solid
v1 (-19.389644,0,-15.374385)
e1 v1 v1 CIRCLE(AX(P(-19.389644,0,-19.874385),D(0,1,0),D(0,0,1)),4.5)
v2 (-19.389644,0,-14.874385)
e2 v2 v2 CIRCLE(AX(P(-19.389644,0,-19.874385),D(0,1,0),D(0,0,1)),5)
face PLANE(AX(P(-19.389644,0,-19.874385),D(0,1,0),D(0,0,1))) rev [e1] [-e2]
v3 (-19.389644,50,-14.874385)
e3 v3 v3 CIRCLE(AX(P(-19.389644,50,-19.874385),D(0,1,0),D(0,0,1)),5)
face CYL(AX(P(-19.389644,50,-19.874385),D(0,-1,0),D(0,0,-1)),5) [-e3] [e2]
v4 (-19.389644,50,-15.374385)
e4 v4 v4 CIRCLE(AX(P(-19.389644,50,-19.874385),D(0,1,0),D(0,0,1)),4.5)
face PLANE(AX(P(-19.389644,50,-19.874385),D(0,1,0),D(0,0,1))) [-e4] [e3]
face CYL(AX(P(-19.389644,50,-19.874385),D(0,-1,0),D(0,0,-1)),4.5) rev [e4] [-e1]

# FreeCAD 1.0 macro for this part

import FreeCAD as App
import Part
import Sketcher
from FreeCAD import Vector
Q = App.Units.Quantity

doc = App.newDocument("Part")
body = doc.addObject("PartDesign::Body", "Body")

# Sketch on XZ plane
sketch1 = body.newObject("Sketcher::SketchObject", "Sketch")
sketch1.AttachmentSupport = (doc.getObject("XZ_Plane"), [""])
sketch1.MapMode = "FlatFace"
sketch1.addGeometry(Part.Circle(Vector(-19.389644, -19.874385, 0), Vector(0, 0, 1), 5), False)
sketch1.addConstraint(Sketcher.Constraint("Diameter", 0, Q("10 mm")))
sketch1.addConstraint(Sketcher.Constraint("DistanceX", 0, 3, -1, 1, Q("19.389644 mm")))
sketch1.addConstraint(Sketcher.Constraint("DistanceY", 0, 3, -1, 1, Q("19.874385 mm")))
pad1 = body.newObject("PartDesign::Pad", "Pad")
pad1.Profile = sketch1
pad1.Length = 50
pad1.Reversed = True

# Sketch on XZ plane
sketch2 = body.newObject("Sketcher::SketchObject", "Sketch001")
sketch2.AttachmentSupport = (doc.getObject("XZ_Plane"), [""])
sketch2.MapMode = "FlatFace"
sketch2.addGeometry(Part.Circle(Vector(-19.389644, -19.874385, 0), Vector(0, 0, 1), 4.5), False)
sketch2.addConstraint(Sketcher.Constraint("Diameter", 0, Q("9 mm")))
sketch2.addConstraint(Sketcher.Constraint("DistanceX", 0, 3, -1, 1, Q("19.389644 mm")))
sketch2.addConstraint(Sketcher.Constraint("DistanceY", 0, 3, -1, 1, Q("19.874385 mm")))
pocket1 = body.newObject("PartDesign::Pocket", "Pocket")
pocket1.Profile = sketch2
pocket1.Type = "ThroughAll"

doc.recompute()
